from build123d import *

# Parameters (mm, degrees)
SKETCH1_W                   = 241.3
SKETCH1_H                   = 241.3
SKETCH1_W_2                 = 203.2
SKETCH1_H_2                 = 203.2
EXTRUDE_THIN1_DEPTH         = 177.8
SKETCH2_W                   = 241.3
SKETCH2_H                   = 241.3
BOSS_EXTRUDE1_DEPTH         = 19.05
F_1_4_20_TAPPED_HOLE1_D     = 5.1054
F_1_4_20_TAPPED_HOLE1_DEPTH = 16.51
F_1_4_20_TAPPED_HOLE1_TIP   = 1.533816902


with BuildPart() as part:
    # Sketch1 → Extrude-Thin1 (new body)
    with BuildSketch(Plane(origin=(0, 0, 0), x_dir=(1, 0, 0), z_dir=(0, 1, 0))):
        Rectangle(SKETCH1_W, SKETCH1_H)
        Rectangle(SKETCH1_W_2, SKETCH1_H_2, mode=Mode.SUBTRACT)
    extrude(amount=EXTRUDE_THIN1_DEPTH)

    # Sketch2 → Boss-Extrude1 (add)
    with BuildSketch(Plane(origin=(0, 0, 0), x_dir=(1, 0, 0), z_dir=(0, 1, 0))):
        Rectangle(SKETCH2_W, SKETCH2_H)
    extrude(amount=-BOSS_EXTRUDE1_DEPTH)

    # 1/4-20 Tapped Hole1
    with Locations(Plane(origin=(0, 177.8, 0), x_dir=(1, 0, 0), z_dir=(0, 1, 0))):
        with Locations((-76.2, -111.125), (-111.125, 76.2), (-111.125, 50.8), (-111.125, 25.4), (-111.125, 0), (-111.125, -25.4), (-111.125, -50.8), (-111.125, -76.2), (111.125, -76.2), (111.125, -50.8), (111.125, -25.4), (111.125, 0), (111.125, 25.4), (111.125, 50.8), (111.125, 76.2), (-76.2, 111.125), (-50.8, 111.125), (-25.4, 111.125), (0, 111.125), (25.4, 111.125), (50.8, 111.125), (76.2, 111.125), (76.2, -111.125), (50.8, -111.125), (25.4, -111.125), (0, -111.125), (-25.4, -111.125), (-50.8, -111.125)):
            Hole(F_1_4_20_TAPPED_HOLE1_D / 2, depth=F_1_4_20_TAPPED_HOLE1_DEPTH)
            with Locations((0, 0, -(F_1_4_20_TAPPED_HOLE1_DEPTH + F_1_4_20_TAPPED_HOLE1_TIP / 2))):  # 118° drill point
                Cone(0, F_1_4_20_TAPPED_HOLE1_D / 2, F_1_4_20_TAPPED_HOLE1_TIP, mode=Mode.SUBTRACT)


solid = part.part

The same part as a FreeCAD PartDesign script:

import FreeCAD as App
import Part
import Sketcher
Q = App.Units.Quantity

doc = App.newDocument("Part")
body = doc.addObject("PartDesign::Body", "Body")

# Sketch on XZ plane
sketch1 = doc.addObject("Sketcher::SketchObject", "Sketch")
body.addObject(sketch1)
sketch1.AttachmentSupport = (doc.XZ_Plane, [""])
sketch1.MapMode = "FlatFace"
sketch1.addGeometry([
    Part.LineSegment(App.Vector(-121, -121, 0), App.Vector(-121, 121, 0)),  # 0
    Part.LineSegment(App.Vector(-121, 121, 0), App.Vector(121, 121, 0)),  # 1
    Part.LineSegment(App.Vector(121, 121, 0), App.Vector(121, -121, 0)),  # 2
    Part.LineSegment(App.Vector(121, -121, 0), App.Vector(-121, -121, 0)),  # 3
    Part.LineSegment(App.Vector(102, 102, 0), App.Vector(-102, 102, 0)),  # 4
    Part.LineSegment(App.Vector(-102, 102, 0), App.Vector(-102, -102, 0)),  # 5
    Part.LineSegment(App.Vector(-102, -102, 0), App.Vector(102, -102, 0)),  # 6
    Part.LineSegment(App.Vector(102, -102, 0), App.Vector(102, 102, 0)),  # 7
], False)
sketch1.addConstraint([
    Sketcher.Constraint("Coincident", 0, 2, 1, 1),
    Sketcher.Constraint("Coincident", 1, 2, 2, 1),
    Sketcher.Constraint("Coincident", 2, 2, 3, 1),
    Sketcher.Constraint("Coincident", 3, 2, 0, 1),
    Sketcher.Constraint("Coincident", 4, 2, 5, 1),
    Sketcher.Constraint("Coincident", 5, 2, 6, 1),
    Sketcher.Constraint("Coincident", 6, 2, 7, 1),
    Sketcher.Constraint("Coincident", 7, 2, 4, 1),
    Sketcher.Constraint("Vertical", 0),
    Sketcher.Constraint("Horizontal", 1),
    Sketcher.Constraint("Vertical", 2),
    Sketcher.Constraint("Horizontal", 3),
    Sketcher.Constraint("Horizontal", 4),
    Sketcher.Constraint("Vertical", 5),
    Sketcher.Constraint("Horizontal", 6),
    Sketcher.Constraint("Vertical", 7),
    Sketcher.Constraint("Symmetric", 0, 2, 2, 2, -1, 1),
    Sketcher.Constraint("Symmetric", 4, 2, 6, 2, -1, 1),
    Sketcher.Constraint("Equal", 3, 0),
    Sketcher.Constraint("Equal", 6, 5),
    Sketcher.Constraint("DistanceX", 4, 2, 4, 1, Q("8 in")),
    Sketcher.Constraint("DistanceX", 1, 1, 1, 2, Q("9.5 in")),
])
pad1 = doc.addObject("PartDesign::Pad", "Pad")
body.addObject(pad1)
pad1.Profile = sketch1
pad1.Length = Q("7 in")
pad1.Reversed = True

# Sketch on XZ plane
sketch2 = doc.addObject("Sketcher::SketchObject", "Sketch001")
body.addObject(sketch2)
sketch2.AttachmentSupport = (doc.XZ_Plane, [""])
sketch2.MapMode = "FlatFace"
sketch2.addGeometry([
    Part.LineSegment(App.Vector(-121, -121, 0), App.Vector(-121, 121, 0)),
    Part.LineSegment(App.Vector(-121, 121, 0), App.Vector(121, 121, 0)),
    Part.LineSegment(App.Vector(121, 121, 0), App.Vector(121, -121, 0)),
    Part.LineSegment(App.Vector(121, -121, 0), App.Vector(-121, -121, 0)),
], False)
sketch2.addConstraint([
    Sketcher.Constraint("Coincident", 0, 2, 1, 1),
    Sketcher.Constraint("Coincident", 1, 2, 2, 1),
    Sketcher.Constraint("Coincident", 2, 2, 3, 1),
    Sketcher.Constraint("Coincident", 3, 2, 0, 1),
    Sketcher.Constraint("Vertical", 0),
    Sketcher.Constraint("Horizontal", 1),
    Sketcher.Constraint("Vertical", 2),
    Sketcher.Constraint("Horizontal", 3),
    Sketcher.Constraint("Symmetric", 0, 2, 2, 2, -1, 1),
    Sketcher.Constraint("Equal", 3, 0),
    Sketcher.Constraint("DistanceX", 1, 1, 1, 2, Q("9.5 in")),
])
pad2 = doc.addObject("PartDesign::Pad", "Pad001")
body.addObject(pad2)
pad2.Profile = sketch2
pad2.Length = Q("0.75 in")

# Sketch on XZ plane
sketch3 = doc.addObject("Sketcher::SketchObject", "Sketch002")
body.addObject(sketch3)
sketch3.AttachmentSupport = (doc.XZ_Plane, [""])
sketch3.MapMode = "FlatFace"
sketch3.AttachmentOffset = App.Placement(App.Vector(0, 0, -7 * 25.4), App.Rotation())
sketch3.addGeometry([
    Part.Circle(App.Vector(-76.2, 111.1, 0), App.Vector(0, 0, 1), 2.6),  # 0
    Part.Circle(App.Vector(-111.1, -76.2, 0), App.Vector(0, 0, 1), 2.6),  # 1
    Part.Circle(App.Vector(-111.1, -50.8, 0), App.Vector(0, 0, 1), 2.6),  # 2
    Part.Circle(App.Vector(-111.1, -25.4, 0), App.Vector(0, 0, 1), 2.6),  # 3
    Part.Circle(App.Vector(-111.1, 0, 0), App.Vector(0, 0, 1), 2.6),  # 4
    Part.Circle(App.Vector(-111.1, 25.4, 0), App.Vector(0, 0, 1), 2.6),  # 5
    Part.Circle(App.Vector(-111.1, 50.8, 0), App.Vector(0, 0, 1), 2.6),  # 6
    Part.Circle(App.Vector(-111.1, 76.2, 0), App.Vector(0, 0, 1), 2.6),  # 7
    Part.Circle(App.Vector(111.1, 76.2, 0), App.Vector(0, 0, 1), 2.6),  # 8
    Part.Circle(App.Vector(111.1, 50.8, 0), App.Vector(0, 0, 1), 2.6),  # 9
    Part.Circle(App.Vector(111.1, 25.4, 0), App.Vector(0, 0, 1), 2.6),  # 10
    Part.Circle(App.Vector(111.1, 0, 0), App.Vector(0, 0, 1), 2.6),  # 11
    Part.Circle(App.Vector(111.1, -25.4, 0), App.Vector(0, 0, 1), 2.6),  # 12
    Part.Circle(App.Vector(111.1, -50.8, 0), App.Vector(0, 0, 1), 2.6),  # 13
    Part.Circle(App.Vector(111.1, -76.2, 0), App.Vector(0, 0, 1), 2.6),  # 14
    Part.Circle(App.Vector(-76.2, -111.1, 0), App.Vector(0, 0, 1), 2.6),  # 15
    Part.Circle(App.Vector(-50.8, -111.1, 0), App.Vector(0, 0, 1), 2.6),  # 16
    Part.Circle(App.Vector(-25.4, -111.1, 0), App.Vector(0, 0, 1), 2.6),  # 17
    Part.Circle(App.Vector(0, -111.1, 0), App.Vector(0, 0, 1), 2.6),  # 18
    Part.Circle(App.Vector(25.4, -111.1, 0), App.Vector(0, 0, 1), 2.6),  # 19
    Part.Circle(App.Vector(50.8, -111.1, 0), App.Vector(0, 0, 1), 2.6),  # 20
    Part.Circle(App.Vector(76.2, -111.1, 0), App.Vector(0, 0, 1), 2.6),  # 21
    Part.Circle(App.Vector(76.2, 111.1, 0), App.Vector(0, 0, 1), 2.6),  # 22
    Part.Circle(App.Vector(50.8, 111.1, 0), App.Vector(0, 0, 1), 2.6),  # 23
    Part.Circle(App.Vector(25.4, 111.1, 0), App.Vector(0, 0, 1), 2.6),  # 24
    Part.Circle(App.Vector(0, 111.1, 0), App.Vector(0, 0, 1), 2.6),  # 25
    Part.Circle(App.Vector(-25.4, 111.1, 0), App.Vector(0, 0, 1), 2.6),  # 26
    Part.Circle(App.Vector(-50.8, 111.1, 0), App.Vector(0, 0, 1), 2.6),  # 27
], False)
sketch3.addConstraint([
    Sketcher.Constraint("Equal", 0, 1),
    Sketcher.Constraint("Equal", 1, 2),
    Sketcher.Constraint("Equal", 2, 3),
    Sketcher.Constraint("Equal", 3, 4),
    Sketcher.Constraint("Equal", 4, 5),
    Sketcher.Constraint("Equal", 5, 6),
    Sketcher.Constraint("Equal", 6, 7),
    Sketcher.Constraint("Equal", 7, 8),
    Sketcher.Constraint("Equal", 8, 9),
    Sketcher.Constraint("Equal", 9, 10),
    Sketcher.Constraint("Equal", 10, 11),
    Sketcher.Constraint("Equal", 11, 12),
    Sketcher.Constraint("Equal", 12, 13),
    Sketcher.Constraint("Equal", 13, 14),
    Sketcher.Constraint("Equal", 14, 15),
    Sketcher.Constraint("Equal", 15, 16),
    Sketcher.Constraint("Equal", 16, 17),
    Sketcher.Constraint("Equal", 17, 18),
    Sketcher.Constraint("Equal", 18, 19),
    Sketcher.Constraint("Equal", 19, 20),
    Sketcher.Constraint("Equal", 20, 21),
    Sketcher.Constraint("Equal", 21, 22),
    Sketcher.Constraint("Equal", 22, 23),
    Sketcher.Constraint("Equal", 23, 24),
    Sketcher.Constraint("Equal", 24, 25),
    Sketcher.Constraint("Equal", 25, 26),
    Sketcher.Constraint("Equal", 26, 27),
    Sketcher.Constraint("Symmetric", 1, 3, 8, 3, -1, 1),
    Sketcher.Constraint("Symmetric", 2, 3, 9, 3, -1, 1),
    Sketcher.Constraint("Symmetric", 3, 3, 10, 3, -1, 1),
    Sketcher.Constraint("Symmetric", 4, 3, 11, 3, -1, 1),
    Sketcher.Constraint("Symmetric", 5, 3, 12, 3, -1, 1),
    Sketcher.Constraint("Symmetric", 6, 3, 13, 3, -1, 1),
    Sketcher.Constraint("Symmetric", 7, 3, 14, 3, -1, 1),
    Sketcher.Constraint("Symmetric", 0, 3, 21, 3, -1, 1),
    Sketcher.Constraint("Symmetric", 15, 3, 22, 3, -1, 1),
    Sketcher.Constraint("Symmetric", 16, 3, 23, 3, -1, 1),
    Sketcher.Constraint("Symmetric", 17, 3, 24, 3, -1, 1),
    Sketcher.Constraint("Symmetric", 18, 3, 25, 3, -1, 1),
    Sketcher.Constraint("Symmetric", 19, 3, 26, 3, -1, 1),
    Sketcher.Constraint("Symmetric", 20, 3, 27, 3, -1, 1),
    Sketcher.Constraint("Symmetric", 7, 3, 8, 3, -2),
    Sketcher.Constraint("Symmetric", 6, 3, 9, 3, -2),
    Sketcher.Constraint("Symmetric", 5, 3, 10, 3, -2),
    Sketcher.Constraint("Symmetric", 17, 3, 19, 3, -2),
    Sketcher.Constraint("Symmetric", 16, 3, 20, 3, -2),
    Sketcher.Constraint("Symmetric", 15, 3, 21, 3, -2),
    Sketcher.Constraint("PointOnObject", 4, 3, -1),
    Sketcher.Constraint("PointOnObject", 18, 3, -2),
    Sketcher.Constraint("Horizontal", 15, 3, 16, 3),
    Sketcher.Constraint("Horizontal", 16, 3, 17, 3),
    Sketcher.Constraint("Horizontal", 17, 3, 18, 3),
    Sketcher.Constraint("Vertical", 1, 3, 2, 3),
    Sketcher.Constraint("Vertical", 2, 3, 3, 3),
    Sketcher.Constraint("Vertical", 3, 3, 4, 3),
    Sketcher.Constraint("Diameter", 0, Q("0.201 in")),
    Sketcher.Constraint("DistanceX", 0, 3, -1, 1, Q("3 in")),
    Sketcher.Constraint("DistanceY", 1, 3, -1, 1, Q("3 in")),
    Sketcher.Constraint("DistanceY", 2, 3, -1, 1, Q("2 in")),
    Sketcher.Constraint("DistanceY", 3, 3, -1, 1, Q("1 in")),
    Sketcher.Constraint("DistanceX", 16, 3, -1, 1, Q("2 in")),
    Sketcher.Constraint("DistanceX", 17, 3, -1, 1, Q("1 in")),
    Sketcher.Constraint("DistanceX", 7, 3, 8, 3, Q("8.75 in")),
    Sketcher.Constraint("DistanceY", -1, 1, 0, 3, Q("4.375 in")),
])
doc.recompute()
hole = doc.addObject("PartDesign::Hole", "Hole")
body.addObject(hole)
hole.Profile = sketch3
hole.ThreadType = "None"
hole.Diameter = Q("0.201 in")
hole.DepthType = "Dimension"
hole.Depth = Q("0.65 in")
hole.DrillPoint = "Angled"
hole.DrillPointAngle = 118
hole.Reversed = True

doc.recompute()
